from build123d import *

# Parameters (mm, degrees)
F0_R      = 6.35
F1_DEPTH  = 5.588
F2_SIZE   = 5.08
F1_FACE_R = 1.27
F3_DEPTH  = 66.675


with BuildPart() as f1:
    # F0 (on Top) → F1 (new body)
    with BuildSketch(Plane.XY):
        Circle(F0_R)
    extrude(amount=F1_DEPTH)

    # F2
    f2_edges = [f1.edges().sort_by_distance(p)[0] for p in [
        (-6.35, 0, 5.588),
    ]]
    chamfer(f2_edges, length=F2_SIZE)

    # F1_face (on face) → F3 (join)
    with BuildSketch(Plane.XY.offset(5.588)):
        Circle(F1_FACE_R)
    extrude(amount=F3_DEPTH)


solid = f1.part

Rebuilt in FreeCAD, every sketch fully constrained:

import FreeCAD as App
import Part
import Sketcher
from FreeCAD import Vector
Q = App.Units.Quantity


def edges_at(feature, points):
    """Names of the edges that pass closest to the given points."""
    edges = feature.Shape.Edges
    near = lambda p: min(range(len(edges)), key=lambda i: edges[i].distToShape(Part.Vertex(*p))[0])
    return sorted({f"Edge{near(p) + 1}" for p in points})

doc = App.newDocument("Part")
body = doc.addObject("PartDesign::Body", "Body")

# Sketch on XY plane
sketch1 = body.newObject("Sketcher::SketchObject", "Sketch")
sketch1.AttachmentSupport = (doc.getObject("XY_Plane"), [""])
sketch1.MapMode = "FlatFace"
sketch1.addGeometry(Part.Circle(Vector(0, 0, 0), Vector(0, 0, 1), 6), False)
sketch1.addConstraint([
    Sketcher.Constraint("Coincident", 0, 3, -1, 1),
    Sketcher.Constraint("Diameter", 0, Q("0.5 in")),
])
pad1 = body.newObject("PartDesign::Pad", "Pad")
pad1.Profile = sketch1
pad1.Length = Q("0.22 in")
doc.recompute()

chamfer = body.newObject("PartDesign::Chamfer", "Chamfer")
chamfer.Base = (pad1, edges_at(pad1, [(-6.35, 0, 5.588)]))
chamfer.Size = Q("0.2 in")

# Sketch on XY plane
sketch2 = body.newObject("Sketcher::SketchObject", "Sketch001")
sketch2.AttachmentSupport = (doc.getObject("XY_Plane"), [""])
sketch2.MapMode = "FlatFace"
sketch2.AttachmentOffset = App.Placement(Vector(0, 0, 0.22 * 25.4), App.Rotation())
sketch2.addGeometry(Part.Circle(Vector(0, 0, 0), Vector(0, 0, 1), 1.3), False)
sketch2.addConstraint([
    Sketcher.Constraint("Coincident", 0, 3, -1, 1),
    Sketcher.Constraint("Diameter", 0, Q("0.1 in")),
])
pad2 = body.newObject("PartDesign::Pad", "Pad001")
pad2.Profile = sketch2
pad2.Length = Q("2.625 in")

doc.recompute()
